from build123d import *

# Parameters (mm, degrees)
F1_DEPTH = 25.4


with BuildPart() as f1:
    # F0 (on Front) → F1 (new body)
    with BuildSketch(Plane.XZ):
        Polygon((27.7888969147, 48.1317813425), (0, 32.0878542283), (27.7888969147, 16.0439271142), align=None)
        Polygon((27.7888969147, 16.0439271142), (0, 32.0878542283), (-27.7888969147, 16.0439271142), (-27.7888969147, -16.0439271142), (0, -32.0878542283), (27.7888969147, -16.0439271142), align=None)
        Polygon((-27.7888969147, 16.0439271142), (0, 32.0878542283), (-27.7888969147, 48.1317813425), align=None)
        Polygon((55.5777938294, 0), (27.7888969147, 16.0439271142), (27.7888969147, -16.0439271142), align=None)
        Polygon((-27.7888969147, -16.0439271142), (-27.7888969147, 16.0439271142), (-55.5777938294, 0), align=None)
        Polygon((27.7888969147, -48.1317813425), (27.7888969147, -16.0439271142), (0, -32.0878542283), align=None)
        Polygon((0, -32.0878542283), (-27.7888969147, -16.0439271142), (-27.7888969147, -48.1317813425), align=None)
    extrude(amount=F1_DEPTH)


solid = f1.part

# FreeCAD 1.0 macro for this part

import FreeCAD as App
import Part
import Sketcher
Q = App.Units.Quantity


def add_polygon(sketch, points):
    """Adds a closed chain of lines whose ends are joined by coincident constraints."""
    first, n = sketch.GeometryCount, len(points)
    for a, b in zip(points, points[1:] + points[:1]):
        sketch.addGeometry(Part.LineSegment(App.Vector(*a, 0), App.Vector(*b, 0)), False)
    for i in range(n):
        sketch.addConstraint(Sketcher.Constraint("Coincident", first + i, 2, first + (i + 1) % n, 1))

doc = App.newDocument("Part")
params = doc.addObject("Spreadsheet::Sheet", "Params")
for row, (alias, value) in enumerate([
    ("pad1_length", "1 in"),
], start=1):
    params.set(f"A{row}", alias)
    params.set(f"B{row}", "=" + value)
    params.setAlias(f"B{row}", alias)

body = doc.addObject("PartDesign::Body", "Body")

# Sketch on XZ plane
sketch1 = doc.addObject("Sketcher::SketchObject", "Sketch")
body.addObject(sketch1)
sketch1.AttachmentSupport = (doc.XZ_Plane, [""])
sketch1.MapMode = "FlatFace"
add_polygon(sketch1, [(28, 48), (0, 32), (-28, 48), (-28, 16), (-56, 0), (-28, -16), (-28, -48), (0, -32), (28, -48), (28, -16), (56, 0), (28, 16)])  # lines 0-11
sketch1.addConstraint([
    Sketcher.Constraint("Vertical", 2),
    Sketcher.Constraint("Vertical", 5),
    Sketcher.Constraint("Vertical", 8),
    Sketcher.Constraint("Vertical", 11),
    Sketcher.Constraint("Symmetric", 0, 2, 6, 2, -1, 1),
    Sketcher.Constraint("Symmetric", 1, 2, 7, 2, -1, 1),
    Sketcher.Constraint("Symmetric", 3, 2, 9, 2, -1, 1),
    Sketcher.Constraint("Symmetric", 4, 2, 10, 2, -1, 1),
    Sketcher.Constraint("Symmetric", 5, 2, 7, 2, -2),
    Sketcher.Constraint("PointOnObject", 0, 2, -2),
    Sketcher.Constraint("PointOnObject", 3, 2, -1),
    Sketcher.Constraint("Parallel", 0, 3),
    Sketcher.Constraint("Parallel", 1, 4),
    Sketcher.Constraint("Parallel", 3, 6),
    Sketcher.Constraint("Parallel", 6, 9),
    Sketcher.Constraint("Equal", 1, 3),
    Sketcher.Constraint("Angle", 0, Q("-150 deg")),
    Sketcher.Constraint("DistanceY", 2, 2, 2, 1, 32.087854),
    Sketcher.Constraint("DistanceY", -1, 1, 1, 2, 48.131781),
])
pad1 = doc.addObject("PartDesign::Pad", "Pad")
body.addObject(pad1)
pad1.Profile = sketch1
pad1.setExpression("Length", "Params.pad1_length")

doc.recompute()
